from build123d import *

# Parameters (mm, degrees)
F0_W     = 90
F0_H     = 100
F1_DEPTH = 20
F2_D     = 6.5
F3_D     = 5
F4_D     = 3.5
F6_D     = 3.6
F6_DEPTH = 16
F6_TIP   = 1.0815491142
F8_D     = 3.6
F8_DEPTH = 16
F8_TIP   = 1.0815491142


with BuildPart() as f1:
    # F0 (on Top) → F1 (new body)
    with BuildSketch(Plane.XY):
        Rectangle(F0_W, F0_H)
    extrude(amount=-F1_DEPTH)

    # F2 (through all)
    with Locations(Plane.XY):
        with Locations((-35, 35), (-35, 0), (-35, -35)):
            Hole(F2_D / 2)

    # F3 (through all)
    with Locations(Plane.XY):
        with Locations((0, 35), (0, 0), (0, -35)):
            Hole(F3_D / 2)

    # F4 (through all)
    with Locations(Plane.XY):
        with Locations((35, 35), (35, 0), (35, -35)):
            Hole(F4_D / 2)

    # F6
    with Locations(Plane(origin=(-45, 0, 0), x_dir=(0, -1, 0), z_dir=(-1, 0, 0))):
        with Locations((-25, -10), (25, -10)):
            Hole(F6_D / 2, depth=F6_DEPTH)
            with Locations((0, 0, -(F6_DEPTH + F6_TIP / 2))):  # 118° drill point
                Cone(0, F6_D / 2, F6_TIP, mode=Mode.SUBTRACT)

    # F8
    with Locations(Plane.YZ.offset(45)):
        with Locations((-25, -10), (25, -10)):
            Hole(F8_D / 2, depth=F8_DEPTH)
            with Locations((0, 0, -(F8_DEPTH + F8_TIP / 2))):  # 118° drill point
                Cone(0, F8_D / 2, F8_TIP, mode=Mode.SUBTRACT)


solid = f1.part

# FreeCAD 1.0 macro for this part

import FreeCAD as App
import Part
import Sketcher
from FreeCAD import Vector
Q = App.Units.Quantity

doc = App.newDocument("Part")
body = doc.addObject("PartDesign::Body", "Body")

sketch1 = body.newObject("Sketcher::SketchObject", "Sketch")
sketch1.AttachmentSupport = (doc.getObject("XY_Plane"), [""])
sketch1.MapMode = "FlatFace"
sketch1.addGeometry([
    Part.LineSegment(Vector(-45, 50, 0), Vector(-45, -50, 0)),
    Part.LineSegment(Vector(-45, -50, 0), Vector(45, -50, 0)),
    Part.LineSegment(Vector(45, -50, 0), Vector(45, 50, 0)),
    Part.LineSegment(Vector(45, 50, 0), Vector(-45, 50, 0)),
], False)
sketch1.addConstraint([
    Sketcher.Constraint("Coincident", 0, 2, 1, 1),
    Sketcher.Constraint("Coincident", 1, 2, 2, 1),
    Sketcher.Constraint("Coincident", 2, 2, 3, 1),
    Sketcher.Constraint("Coincident", 3, 2, 0, 1),
    Sketcher.Constraint("Vertical", 0),
    Sketcher.Constraint("Horizontal", 1),
    Sketcher.Constraint("Vertical", 2),
    Sketcher.Constraint("Horizontal", 3),
    Sketcher.Constraint("Symmetric", 0, 2, 2, 2, -1, 1),
    Sketcher.Constraint("DistanceX", 1, 1, 1, 2, Q("90 mm")),
    Sketcher.Constraint("DistanceY", 0, 2, 0, 1, Q("100 mm")),
])
pad1 = body.newObject("PartDesign::Pad", "Pad")
pad1.Profile = sketch1
pad1.Length = 20
pad1.Reversed = True

sketch2 = body.newObject("Sketcher::SketchObject", "Sketch001")
sketch2.AttachmentSupport = (doc.getObject("XY_Plane"), [""])
sketch2.MapMode = "FlatFace"
sketch2.addGeometry([
    Part.Circle(Vector(-35, 35, 0), Vector(0, 0, 1), 3.2),
    Part.Circle(Vector(-35, 0, 0), Vector(0, 0, 1), 3.2),
    Part.Circle(Vector(-35, -35, 0), Vector(0, 0, 1), 3.2),
], False)
sketch2.addConstraint([
    Sketcher.Constraint("Equal", 0, 1),
    Sketcher.Constraint("Equal", 1, 2),
    Sketcher.Constraint("Symmetric", 0, 3, 2, 3, -1),
    Sketcher.Constraint("PointOnObject", 1, 3, -1),
    Sketcher.Constraint("Vertical", 0, 3, 1, 3),
    Sketcher.Constraint("Diameter", 0, Q("6.5 mm")),
    Sketcher.Constraint("DistanceX", 0, 3, -1, 1, Q("35 mm")),
    Sketcher.Constraint("DistanceY", -1, 1, 0, 3, Q("35 mm")),
])
doc.recompute()
hole = body.newObject("PartDesign::Hole", "Hole")
hole.Profile = sketch2
hole.ThreadType = "None"
hole.Diameter = 6.5
hole.DepthType = "ThroughAll"

sketch3 = body.newObject("Sketcher::SketchObject", "Sketch002")
sketch3.AttachmentSupport = (doc.getObject("XY_Plane"), [""])
sketch3.MapMode = "FlatFace"
sketch3.addGeometry([
    Part.Circle(Vector(0, 35, 0), Vector(0, 0, 1), 2.5),
    Part.Circle(Vector(0, 0, 0), Vector(0, 0, 1), 2.5),
    Part.Circle(Vector(0, -35, 0), Vector(0, 0, 1), 2.5),
], False)
sketch3.addConstraint([
    Sketcher.Constraint("Coincident", 1, 3, -1, 1),
    Sketcher.Constraint("Equal", 0, 1),
    Sketcher.Constraint("Equal", 1, 2),
    Sketcher.Constraint("Symmetric", 0, 3, 2, 3, -1, 1),
    Sketcher.Constraint("PointOnObject", 0, 3, -2),
    Sketcher.Constraint("Diameter", 0, Q("5 mm")),
    Sketcher.Constraint("DistanceY", -1, 1, 0, 3, Q("35 mm")),
])
doc.recompute()
hole2 = body.newObject("PartDesign::Hole", "Hole001")
hole2.Profile = sketch3
hole2.ThreadType = "None"
hole2.Diameter = 5
hole2.DepthType = "ThroughAll"

sketch4 = body.newObject("Sketcher::SketchObject", "Sketch003")
sketch4.AttachmentSupport = (doc.getObject("XY_Plane"), [""])
sketch4.MapMode = "FlatFace"
sketch4.addGeometry([
    Part.Circle(Vector(35, 35, 0), Vector(0, 0, 1), 1.8),
    Part.Circle(Vector(35, 0, 0), Vector(0, 0, 1), 1.8),
    Part.Circle(Vector(35, -35, 0), Vector(0, 0, 1), 1.8),
], False)
sketch4.addConstraint([
    Sketcher.Constraint("Equal", 0, 1),
    Sketcher.Constraint("Equal", 1, 2),
    Sketcher.Constraint("Symmetric", 0, 3, 2, 3, -1),
    Sketcher.Constraint("PointOnObject", 1, 3, -1),
    Sketcher.Constraint("Vertical", 0, 3, 1, 3),
    Sketcher.Constraint("Diameter", 0, Q("3.5 mm")),
    Sketcher.Constraint("DistanceX", -1, 1, 0, 3, Q("35 mm")),
    Sketcher.Constraint("DistanceY", -1, 1, 0, 3, Q("35 mm")),
])
doc.recompute()
hole3 = body.newObject("PartDesign::Hole", "Hole002")
hole3.Profile = sketch4
hole3.ThreadType = "None"
hole3.Diameter = 3.5
hole3.DepthType = "ThroughAll"

sketch5 = body.newObject("Sketcher::SketchObject", "Sketch004")
sketch5.AttachmentSupport = (doc.getObject("YZ_Plane"), [""])
sketch5.MapMode = "FlatFace"
sketch5.AttachmentOffset = App.Placement(Vector(0, 0, -45), App.Rotation())
sketch5.addGeometry([
    Part.Circle(Vector(25, -10, 0), Vector(0, 0, 1), 1.8),
    Part.Circle(Vector(-25, -10, 0), Vector(0, 0, 1), 1.8),
], False)
sketch5.addConstraint([
    Sketcher.Constraint("Equal", 0, 1),
    Sketcher.Constraint("Symmetric", 0, 3, 1, 3, -2),
    Sketcher.Constraint("Diameter", 0, Q("3.6 mm")),
    Sketcher.Constraint("DistanceX", -1, 1, 0, 3, Q("25 mm")),
    Sketcher.Constraint("DistanceY", 0, 3, -1, 1, Q("10 mm")),
])
doc.recompute()
hole4 = body.newObject("PartDesign::Hole", "Hole003")
hole4.Profile = sketch5
hole4.ThreadType = "None"
hole4.Diameter = 3.6
hole4.DepthType = "Dimension"
hole4.Depth = 16
hole4.DrillPoint = "Angled"
hole4.DrillPointAngle = 118
hole4.Reversed = True

sketch6 = body.newObject("Sketcher::SketchObject", "Sketch005")
sketch6.AttachmentSupport = (doc.getObject("YZ_Plane"), [""])
sketch6.MapMode = "FlatFace"
sketch6.AttachmentOffset = App.Placement(Vector(0, 0, 45), App.Rotation())
sketch6.addGeometry([
    Part.Circle(Vector(-25, -10, 0), Vector(0, 0, 1), 1.8),
    Part.Circle(Vector(25, -10, 0), Vector(0, 0, 1), 1.8),
], False)
sketch6.addConstraint([
    Sketcher.Constraint("Equal", 0, 1),
    Sketcher.Constraint("Symmetric", 0, 3, 1, 3, -2),
    Sketcher.Constraint("Diameter", 0, Q("3.6 mm")),
    Sketcher.Constraint("DistanceX", 0, 3, -1, 1, Q("25 mm")),
    Sketcher.Constraint("DistanceY", 0, 3, -1, 1, Q("10 mm")),
])
doc.recompute()
hole5 = body.newObject("PartDesign::Hole", "Hole004")
hole5.Profile = sketch6
hole5.ThreadType = "None"
hole5.Diameter = 3.6
hole5.DepthType = "Dimension"
hole5.Depth = 16
hole5.DrillPoint = "Angled"
hole5.DrillPointAngle = 118

doc.recompute()
